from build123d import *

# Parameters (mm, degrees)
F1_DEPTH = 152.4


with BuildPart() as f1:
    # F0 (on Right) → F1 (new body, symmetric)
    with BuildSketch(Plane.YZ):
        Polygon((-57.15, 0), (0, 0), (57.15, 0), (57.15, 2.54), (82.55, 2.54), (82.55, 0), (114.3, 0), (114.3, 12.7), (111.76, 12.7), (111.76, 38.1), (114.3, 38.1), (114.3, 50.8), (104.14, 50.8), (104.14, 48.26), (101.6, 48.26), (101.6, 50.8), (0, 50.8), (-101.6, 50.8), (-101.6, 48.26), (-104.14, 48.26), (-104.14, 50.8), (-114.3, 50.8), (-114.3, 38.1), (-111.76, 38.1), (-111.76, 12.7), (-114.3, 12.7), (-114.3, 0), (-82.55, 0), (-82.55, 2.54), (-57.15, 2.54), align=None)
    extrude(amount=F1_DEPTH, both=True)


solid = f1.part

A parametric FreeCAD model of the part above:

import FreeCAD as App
import Part
import Sketcher

V = App.Vector
Q = App.Units.Quantity


def add_polygon(sketch, points):
    """Adds a closed chain of lines whose ends are joined by coincident constraints."""
    first, n = sketch.GeometryCount, len(points)
    for a, b in zip(points, points[1:] + points[:1]):
        sketch.addGeometry(Part.LineSegment(App.Vector(*a, 0), App.Vector(*b, 0)), False)
    for i in range(n):
        sketch.addConstraint(Sketcher.Constraint("Coincident", first + i, 2, first + (i + 1) % n, 1))

doc = App.newDocument("Part")
body = doc.addObject("PartDesign::Body", "Body")

sketch1 = doc.addObject("Sketcher::SketchObject", "Sketch")
body.addObject(sketch1)
sketch1.AttachmentSupport = (doc.YZ_Plane, [""])
sketch1.MapMode = "FlatFace"
add_polygon(sketch1, [(-57.1, 0), (57.1, 0), (57.1, 2.5), (82.5, 2.5), (82.5, 0), (114.3, 0), (114.3, 12.7), (111.8, 12.7), (111.8, 38.1), (114.3, 38.1), (114.3, 50.8), (104.1, 50.8), (104.1, 48.3), (101.6, 48.3), (101.6, 50.8), (-101.6, 50.8), (-101.6, 48.3), (-104.1, 48.3), (-104.1, 50.8), (-114.3, 50.8), (-114.3, 38.1), (-111.8, 38.1), (-111.8, 12.7), (-114.3, 12.7), (-114.3, 0), (-82.5, 0), (-82.5, 2.5), (-57.1, 2.5)])
sketch1.addConstraint(Sketcher.Constraint("Horizontal", 0))
sketch1.addConstraint(Sketcher.Constraint("Vertical", 1))
sketch1.addConstraint(Sketcher.Constraint("Horizontal", 2))
sketch1.addConstraint(Sketcher.Constraint("Vertical", 3))
sketch1.addConstraint(Sketcher.Constraint("Horizontal", 4))
sketch1.addConstraint(Sketcher.Constraint("Vertical", 5))
sketch1.addConstraint(Sketcher.Constraint("Horizontal", 6))
sketch1.addConstraint(Sketcher.Constraint("Vertical", 7))
sketch1.addConstraint(Sketcher.Constraint("Horizontal", 8))
sketch1.addConstraint(Sketcher.Constraint("Vertical", 9))
sketch1.addConstraint(Sketcher.Constraint("Horizontal", 10))
sketch1.addConstraint(Sketcher.Constraint("Vertical", 11))
sketch1.addConstraint(Sketcher.Constraint("Horizontal", 12))
sketch1.addConstraint(Sketcher.Constraint("Vertical", 13))
sketch1.addConstraint(Sketcher.Constraint("Horizontal", 14))
sketch1.addConstraint(Sketcher.Constraint("Vertical", 15))
sketch1.addConstraint(Sketcher.Constraint("Horizontal", 16))
sketch1.addConstraint(Sketcher.Constraint("Vertical", 17))
sketch1.addConstraint(Sketcher.Constraint("Horizontal", 18))
sketch1.addConstraint(Sketcher.Constraint("Vertical", 19))
sketch1.addConstraint(Sketcher.Constraint("Horizontal", 20))
sketch1.addConstraint(Sketcher.Constraint("Vertical", 21))
sketch1.addConstraint(Sketcher.Constraint("Horizontal", 22))
sketch1.addConstraint(Sketcher.Constraint("Vertical", 23))
sketch1.addConstraint(Sketcher.Constraint("Horizontal", 24))
sketch1.addConstraint(Sketcher.Constraint("Vertical", 25))
sketch1.addConstraint(Sketcher.Constraint("Horizontal", 26))
sketch1.addConstraint(Sketcher.Constraint("Vertical", 27))
sketch1.addConstraint(Sketcher.Constraint("Symmetric", 4, 2, 23, 2, -1, 1))
sketch1.addConstraint(Sketcher.Constraint("Symmetric", 0, 2, 27, 2, -1, 1))
sketch1.addConstraint(Sketcher.Constraint("Symmetric", 12, 2, 15, 2, -2))
sketch1.addConstraint(Sketcher.Constraint("Symmetric", 10, 2, 17, 2, -2))
sketch1.addConstraint(Sketcher.Constraint("Symmetric", 8, 2, 19, 2, -2))
sketch1.addConstraint(Sketcher.Constraint("Symmetric", 6, 2, 21, 2, -2))
sketch1.addConstraint(Sketcher.Constraint("Symmetric", 3, 2, 24, 2, -2))
sketch1.addConstraint(Sketcher.Constraint("Horizontal", 10, 2, 13, 2))
sketch1.addConstraint(Sketcher.Constraint("Horizontal", 2, 2, 25, 2))
sketch1.addConstraint(Sketcher.Constraint("Vertical", 5, 2, 8, 2))
sketch1.addConstraint(Sketcher.Constraint("Equal", 8, 12))
sketch1.addConstraint(Sketcher.Constraint("Equal", 22, 1))
sketch1.addConstraint(Sketcher.Constraint("Equal", 26, 7))
sketch1.addConstraint(Sketcher.Constraint("Equal", 5, 9))
sketch1.addConstraint(Sketcher.Constraint("Equal", 3, 11))
sketch1.addConstraint(Sketcher.Constraint("DistanceX", 2, 1, 2, 2, Q("1 in")))
sketch1.addConstraint(Sketcher.Constraint("DistanceX", 14, 2, 14, 1, Q("8 in")))
sketch1.addConstraint(Sketcher.Constraint("DistanceX", 0, 1, 0, 2, Q("4.5 in")))
sketch1.addConstraint(Sketcher.Constraint("DistanceX", 6, 2, 6, 1, Q("0.1 in")))
sketch1.addConstraint(Sketcher.Constraint("DistanceX", 10, 2, 10, 1, Q("0.4 in")))
sketch1.addConstraint(Sketcher.Constraint("DistanceY", 5, 1, 5, 2, Q("0.5 in")))
pad1 = doc.addObject("PartDesign::Pad", "Pad")
body.addObject(pad1)
pad1.Profile = sketch1
pad1.Length = Q("12 in")
pad1.Midplane = True

doc.recompute()
